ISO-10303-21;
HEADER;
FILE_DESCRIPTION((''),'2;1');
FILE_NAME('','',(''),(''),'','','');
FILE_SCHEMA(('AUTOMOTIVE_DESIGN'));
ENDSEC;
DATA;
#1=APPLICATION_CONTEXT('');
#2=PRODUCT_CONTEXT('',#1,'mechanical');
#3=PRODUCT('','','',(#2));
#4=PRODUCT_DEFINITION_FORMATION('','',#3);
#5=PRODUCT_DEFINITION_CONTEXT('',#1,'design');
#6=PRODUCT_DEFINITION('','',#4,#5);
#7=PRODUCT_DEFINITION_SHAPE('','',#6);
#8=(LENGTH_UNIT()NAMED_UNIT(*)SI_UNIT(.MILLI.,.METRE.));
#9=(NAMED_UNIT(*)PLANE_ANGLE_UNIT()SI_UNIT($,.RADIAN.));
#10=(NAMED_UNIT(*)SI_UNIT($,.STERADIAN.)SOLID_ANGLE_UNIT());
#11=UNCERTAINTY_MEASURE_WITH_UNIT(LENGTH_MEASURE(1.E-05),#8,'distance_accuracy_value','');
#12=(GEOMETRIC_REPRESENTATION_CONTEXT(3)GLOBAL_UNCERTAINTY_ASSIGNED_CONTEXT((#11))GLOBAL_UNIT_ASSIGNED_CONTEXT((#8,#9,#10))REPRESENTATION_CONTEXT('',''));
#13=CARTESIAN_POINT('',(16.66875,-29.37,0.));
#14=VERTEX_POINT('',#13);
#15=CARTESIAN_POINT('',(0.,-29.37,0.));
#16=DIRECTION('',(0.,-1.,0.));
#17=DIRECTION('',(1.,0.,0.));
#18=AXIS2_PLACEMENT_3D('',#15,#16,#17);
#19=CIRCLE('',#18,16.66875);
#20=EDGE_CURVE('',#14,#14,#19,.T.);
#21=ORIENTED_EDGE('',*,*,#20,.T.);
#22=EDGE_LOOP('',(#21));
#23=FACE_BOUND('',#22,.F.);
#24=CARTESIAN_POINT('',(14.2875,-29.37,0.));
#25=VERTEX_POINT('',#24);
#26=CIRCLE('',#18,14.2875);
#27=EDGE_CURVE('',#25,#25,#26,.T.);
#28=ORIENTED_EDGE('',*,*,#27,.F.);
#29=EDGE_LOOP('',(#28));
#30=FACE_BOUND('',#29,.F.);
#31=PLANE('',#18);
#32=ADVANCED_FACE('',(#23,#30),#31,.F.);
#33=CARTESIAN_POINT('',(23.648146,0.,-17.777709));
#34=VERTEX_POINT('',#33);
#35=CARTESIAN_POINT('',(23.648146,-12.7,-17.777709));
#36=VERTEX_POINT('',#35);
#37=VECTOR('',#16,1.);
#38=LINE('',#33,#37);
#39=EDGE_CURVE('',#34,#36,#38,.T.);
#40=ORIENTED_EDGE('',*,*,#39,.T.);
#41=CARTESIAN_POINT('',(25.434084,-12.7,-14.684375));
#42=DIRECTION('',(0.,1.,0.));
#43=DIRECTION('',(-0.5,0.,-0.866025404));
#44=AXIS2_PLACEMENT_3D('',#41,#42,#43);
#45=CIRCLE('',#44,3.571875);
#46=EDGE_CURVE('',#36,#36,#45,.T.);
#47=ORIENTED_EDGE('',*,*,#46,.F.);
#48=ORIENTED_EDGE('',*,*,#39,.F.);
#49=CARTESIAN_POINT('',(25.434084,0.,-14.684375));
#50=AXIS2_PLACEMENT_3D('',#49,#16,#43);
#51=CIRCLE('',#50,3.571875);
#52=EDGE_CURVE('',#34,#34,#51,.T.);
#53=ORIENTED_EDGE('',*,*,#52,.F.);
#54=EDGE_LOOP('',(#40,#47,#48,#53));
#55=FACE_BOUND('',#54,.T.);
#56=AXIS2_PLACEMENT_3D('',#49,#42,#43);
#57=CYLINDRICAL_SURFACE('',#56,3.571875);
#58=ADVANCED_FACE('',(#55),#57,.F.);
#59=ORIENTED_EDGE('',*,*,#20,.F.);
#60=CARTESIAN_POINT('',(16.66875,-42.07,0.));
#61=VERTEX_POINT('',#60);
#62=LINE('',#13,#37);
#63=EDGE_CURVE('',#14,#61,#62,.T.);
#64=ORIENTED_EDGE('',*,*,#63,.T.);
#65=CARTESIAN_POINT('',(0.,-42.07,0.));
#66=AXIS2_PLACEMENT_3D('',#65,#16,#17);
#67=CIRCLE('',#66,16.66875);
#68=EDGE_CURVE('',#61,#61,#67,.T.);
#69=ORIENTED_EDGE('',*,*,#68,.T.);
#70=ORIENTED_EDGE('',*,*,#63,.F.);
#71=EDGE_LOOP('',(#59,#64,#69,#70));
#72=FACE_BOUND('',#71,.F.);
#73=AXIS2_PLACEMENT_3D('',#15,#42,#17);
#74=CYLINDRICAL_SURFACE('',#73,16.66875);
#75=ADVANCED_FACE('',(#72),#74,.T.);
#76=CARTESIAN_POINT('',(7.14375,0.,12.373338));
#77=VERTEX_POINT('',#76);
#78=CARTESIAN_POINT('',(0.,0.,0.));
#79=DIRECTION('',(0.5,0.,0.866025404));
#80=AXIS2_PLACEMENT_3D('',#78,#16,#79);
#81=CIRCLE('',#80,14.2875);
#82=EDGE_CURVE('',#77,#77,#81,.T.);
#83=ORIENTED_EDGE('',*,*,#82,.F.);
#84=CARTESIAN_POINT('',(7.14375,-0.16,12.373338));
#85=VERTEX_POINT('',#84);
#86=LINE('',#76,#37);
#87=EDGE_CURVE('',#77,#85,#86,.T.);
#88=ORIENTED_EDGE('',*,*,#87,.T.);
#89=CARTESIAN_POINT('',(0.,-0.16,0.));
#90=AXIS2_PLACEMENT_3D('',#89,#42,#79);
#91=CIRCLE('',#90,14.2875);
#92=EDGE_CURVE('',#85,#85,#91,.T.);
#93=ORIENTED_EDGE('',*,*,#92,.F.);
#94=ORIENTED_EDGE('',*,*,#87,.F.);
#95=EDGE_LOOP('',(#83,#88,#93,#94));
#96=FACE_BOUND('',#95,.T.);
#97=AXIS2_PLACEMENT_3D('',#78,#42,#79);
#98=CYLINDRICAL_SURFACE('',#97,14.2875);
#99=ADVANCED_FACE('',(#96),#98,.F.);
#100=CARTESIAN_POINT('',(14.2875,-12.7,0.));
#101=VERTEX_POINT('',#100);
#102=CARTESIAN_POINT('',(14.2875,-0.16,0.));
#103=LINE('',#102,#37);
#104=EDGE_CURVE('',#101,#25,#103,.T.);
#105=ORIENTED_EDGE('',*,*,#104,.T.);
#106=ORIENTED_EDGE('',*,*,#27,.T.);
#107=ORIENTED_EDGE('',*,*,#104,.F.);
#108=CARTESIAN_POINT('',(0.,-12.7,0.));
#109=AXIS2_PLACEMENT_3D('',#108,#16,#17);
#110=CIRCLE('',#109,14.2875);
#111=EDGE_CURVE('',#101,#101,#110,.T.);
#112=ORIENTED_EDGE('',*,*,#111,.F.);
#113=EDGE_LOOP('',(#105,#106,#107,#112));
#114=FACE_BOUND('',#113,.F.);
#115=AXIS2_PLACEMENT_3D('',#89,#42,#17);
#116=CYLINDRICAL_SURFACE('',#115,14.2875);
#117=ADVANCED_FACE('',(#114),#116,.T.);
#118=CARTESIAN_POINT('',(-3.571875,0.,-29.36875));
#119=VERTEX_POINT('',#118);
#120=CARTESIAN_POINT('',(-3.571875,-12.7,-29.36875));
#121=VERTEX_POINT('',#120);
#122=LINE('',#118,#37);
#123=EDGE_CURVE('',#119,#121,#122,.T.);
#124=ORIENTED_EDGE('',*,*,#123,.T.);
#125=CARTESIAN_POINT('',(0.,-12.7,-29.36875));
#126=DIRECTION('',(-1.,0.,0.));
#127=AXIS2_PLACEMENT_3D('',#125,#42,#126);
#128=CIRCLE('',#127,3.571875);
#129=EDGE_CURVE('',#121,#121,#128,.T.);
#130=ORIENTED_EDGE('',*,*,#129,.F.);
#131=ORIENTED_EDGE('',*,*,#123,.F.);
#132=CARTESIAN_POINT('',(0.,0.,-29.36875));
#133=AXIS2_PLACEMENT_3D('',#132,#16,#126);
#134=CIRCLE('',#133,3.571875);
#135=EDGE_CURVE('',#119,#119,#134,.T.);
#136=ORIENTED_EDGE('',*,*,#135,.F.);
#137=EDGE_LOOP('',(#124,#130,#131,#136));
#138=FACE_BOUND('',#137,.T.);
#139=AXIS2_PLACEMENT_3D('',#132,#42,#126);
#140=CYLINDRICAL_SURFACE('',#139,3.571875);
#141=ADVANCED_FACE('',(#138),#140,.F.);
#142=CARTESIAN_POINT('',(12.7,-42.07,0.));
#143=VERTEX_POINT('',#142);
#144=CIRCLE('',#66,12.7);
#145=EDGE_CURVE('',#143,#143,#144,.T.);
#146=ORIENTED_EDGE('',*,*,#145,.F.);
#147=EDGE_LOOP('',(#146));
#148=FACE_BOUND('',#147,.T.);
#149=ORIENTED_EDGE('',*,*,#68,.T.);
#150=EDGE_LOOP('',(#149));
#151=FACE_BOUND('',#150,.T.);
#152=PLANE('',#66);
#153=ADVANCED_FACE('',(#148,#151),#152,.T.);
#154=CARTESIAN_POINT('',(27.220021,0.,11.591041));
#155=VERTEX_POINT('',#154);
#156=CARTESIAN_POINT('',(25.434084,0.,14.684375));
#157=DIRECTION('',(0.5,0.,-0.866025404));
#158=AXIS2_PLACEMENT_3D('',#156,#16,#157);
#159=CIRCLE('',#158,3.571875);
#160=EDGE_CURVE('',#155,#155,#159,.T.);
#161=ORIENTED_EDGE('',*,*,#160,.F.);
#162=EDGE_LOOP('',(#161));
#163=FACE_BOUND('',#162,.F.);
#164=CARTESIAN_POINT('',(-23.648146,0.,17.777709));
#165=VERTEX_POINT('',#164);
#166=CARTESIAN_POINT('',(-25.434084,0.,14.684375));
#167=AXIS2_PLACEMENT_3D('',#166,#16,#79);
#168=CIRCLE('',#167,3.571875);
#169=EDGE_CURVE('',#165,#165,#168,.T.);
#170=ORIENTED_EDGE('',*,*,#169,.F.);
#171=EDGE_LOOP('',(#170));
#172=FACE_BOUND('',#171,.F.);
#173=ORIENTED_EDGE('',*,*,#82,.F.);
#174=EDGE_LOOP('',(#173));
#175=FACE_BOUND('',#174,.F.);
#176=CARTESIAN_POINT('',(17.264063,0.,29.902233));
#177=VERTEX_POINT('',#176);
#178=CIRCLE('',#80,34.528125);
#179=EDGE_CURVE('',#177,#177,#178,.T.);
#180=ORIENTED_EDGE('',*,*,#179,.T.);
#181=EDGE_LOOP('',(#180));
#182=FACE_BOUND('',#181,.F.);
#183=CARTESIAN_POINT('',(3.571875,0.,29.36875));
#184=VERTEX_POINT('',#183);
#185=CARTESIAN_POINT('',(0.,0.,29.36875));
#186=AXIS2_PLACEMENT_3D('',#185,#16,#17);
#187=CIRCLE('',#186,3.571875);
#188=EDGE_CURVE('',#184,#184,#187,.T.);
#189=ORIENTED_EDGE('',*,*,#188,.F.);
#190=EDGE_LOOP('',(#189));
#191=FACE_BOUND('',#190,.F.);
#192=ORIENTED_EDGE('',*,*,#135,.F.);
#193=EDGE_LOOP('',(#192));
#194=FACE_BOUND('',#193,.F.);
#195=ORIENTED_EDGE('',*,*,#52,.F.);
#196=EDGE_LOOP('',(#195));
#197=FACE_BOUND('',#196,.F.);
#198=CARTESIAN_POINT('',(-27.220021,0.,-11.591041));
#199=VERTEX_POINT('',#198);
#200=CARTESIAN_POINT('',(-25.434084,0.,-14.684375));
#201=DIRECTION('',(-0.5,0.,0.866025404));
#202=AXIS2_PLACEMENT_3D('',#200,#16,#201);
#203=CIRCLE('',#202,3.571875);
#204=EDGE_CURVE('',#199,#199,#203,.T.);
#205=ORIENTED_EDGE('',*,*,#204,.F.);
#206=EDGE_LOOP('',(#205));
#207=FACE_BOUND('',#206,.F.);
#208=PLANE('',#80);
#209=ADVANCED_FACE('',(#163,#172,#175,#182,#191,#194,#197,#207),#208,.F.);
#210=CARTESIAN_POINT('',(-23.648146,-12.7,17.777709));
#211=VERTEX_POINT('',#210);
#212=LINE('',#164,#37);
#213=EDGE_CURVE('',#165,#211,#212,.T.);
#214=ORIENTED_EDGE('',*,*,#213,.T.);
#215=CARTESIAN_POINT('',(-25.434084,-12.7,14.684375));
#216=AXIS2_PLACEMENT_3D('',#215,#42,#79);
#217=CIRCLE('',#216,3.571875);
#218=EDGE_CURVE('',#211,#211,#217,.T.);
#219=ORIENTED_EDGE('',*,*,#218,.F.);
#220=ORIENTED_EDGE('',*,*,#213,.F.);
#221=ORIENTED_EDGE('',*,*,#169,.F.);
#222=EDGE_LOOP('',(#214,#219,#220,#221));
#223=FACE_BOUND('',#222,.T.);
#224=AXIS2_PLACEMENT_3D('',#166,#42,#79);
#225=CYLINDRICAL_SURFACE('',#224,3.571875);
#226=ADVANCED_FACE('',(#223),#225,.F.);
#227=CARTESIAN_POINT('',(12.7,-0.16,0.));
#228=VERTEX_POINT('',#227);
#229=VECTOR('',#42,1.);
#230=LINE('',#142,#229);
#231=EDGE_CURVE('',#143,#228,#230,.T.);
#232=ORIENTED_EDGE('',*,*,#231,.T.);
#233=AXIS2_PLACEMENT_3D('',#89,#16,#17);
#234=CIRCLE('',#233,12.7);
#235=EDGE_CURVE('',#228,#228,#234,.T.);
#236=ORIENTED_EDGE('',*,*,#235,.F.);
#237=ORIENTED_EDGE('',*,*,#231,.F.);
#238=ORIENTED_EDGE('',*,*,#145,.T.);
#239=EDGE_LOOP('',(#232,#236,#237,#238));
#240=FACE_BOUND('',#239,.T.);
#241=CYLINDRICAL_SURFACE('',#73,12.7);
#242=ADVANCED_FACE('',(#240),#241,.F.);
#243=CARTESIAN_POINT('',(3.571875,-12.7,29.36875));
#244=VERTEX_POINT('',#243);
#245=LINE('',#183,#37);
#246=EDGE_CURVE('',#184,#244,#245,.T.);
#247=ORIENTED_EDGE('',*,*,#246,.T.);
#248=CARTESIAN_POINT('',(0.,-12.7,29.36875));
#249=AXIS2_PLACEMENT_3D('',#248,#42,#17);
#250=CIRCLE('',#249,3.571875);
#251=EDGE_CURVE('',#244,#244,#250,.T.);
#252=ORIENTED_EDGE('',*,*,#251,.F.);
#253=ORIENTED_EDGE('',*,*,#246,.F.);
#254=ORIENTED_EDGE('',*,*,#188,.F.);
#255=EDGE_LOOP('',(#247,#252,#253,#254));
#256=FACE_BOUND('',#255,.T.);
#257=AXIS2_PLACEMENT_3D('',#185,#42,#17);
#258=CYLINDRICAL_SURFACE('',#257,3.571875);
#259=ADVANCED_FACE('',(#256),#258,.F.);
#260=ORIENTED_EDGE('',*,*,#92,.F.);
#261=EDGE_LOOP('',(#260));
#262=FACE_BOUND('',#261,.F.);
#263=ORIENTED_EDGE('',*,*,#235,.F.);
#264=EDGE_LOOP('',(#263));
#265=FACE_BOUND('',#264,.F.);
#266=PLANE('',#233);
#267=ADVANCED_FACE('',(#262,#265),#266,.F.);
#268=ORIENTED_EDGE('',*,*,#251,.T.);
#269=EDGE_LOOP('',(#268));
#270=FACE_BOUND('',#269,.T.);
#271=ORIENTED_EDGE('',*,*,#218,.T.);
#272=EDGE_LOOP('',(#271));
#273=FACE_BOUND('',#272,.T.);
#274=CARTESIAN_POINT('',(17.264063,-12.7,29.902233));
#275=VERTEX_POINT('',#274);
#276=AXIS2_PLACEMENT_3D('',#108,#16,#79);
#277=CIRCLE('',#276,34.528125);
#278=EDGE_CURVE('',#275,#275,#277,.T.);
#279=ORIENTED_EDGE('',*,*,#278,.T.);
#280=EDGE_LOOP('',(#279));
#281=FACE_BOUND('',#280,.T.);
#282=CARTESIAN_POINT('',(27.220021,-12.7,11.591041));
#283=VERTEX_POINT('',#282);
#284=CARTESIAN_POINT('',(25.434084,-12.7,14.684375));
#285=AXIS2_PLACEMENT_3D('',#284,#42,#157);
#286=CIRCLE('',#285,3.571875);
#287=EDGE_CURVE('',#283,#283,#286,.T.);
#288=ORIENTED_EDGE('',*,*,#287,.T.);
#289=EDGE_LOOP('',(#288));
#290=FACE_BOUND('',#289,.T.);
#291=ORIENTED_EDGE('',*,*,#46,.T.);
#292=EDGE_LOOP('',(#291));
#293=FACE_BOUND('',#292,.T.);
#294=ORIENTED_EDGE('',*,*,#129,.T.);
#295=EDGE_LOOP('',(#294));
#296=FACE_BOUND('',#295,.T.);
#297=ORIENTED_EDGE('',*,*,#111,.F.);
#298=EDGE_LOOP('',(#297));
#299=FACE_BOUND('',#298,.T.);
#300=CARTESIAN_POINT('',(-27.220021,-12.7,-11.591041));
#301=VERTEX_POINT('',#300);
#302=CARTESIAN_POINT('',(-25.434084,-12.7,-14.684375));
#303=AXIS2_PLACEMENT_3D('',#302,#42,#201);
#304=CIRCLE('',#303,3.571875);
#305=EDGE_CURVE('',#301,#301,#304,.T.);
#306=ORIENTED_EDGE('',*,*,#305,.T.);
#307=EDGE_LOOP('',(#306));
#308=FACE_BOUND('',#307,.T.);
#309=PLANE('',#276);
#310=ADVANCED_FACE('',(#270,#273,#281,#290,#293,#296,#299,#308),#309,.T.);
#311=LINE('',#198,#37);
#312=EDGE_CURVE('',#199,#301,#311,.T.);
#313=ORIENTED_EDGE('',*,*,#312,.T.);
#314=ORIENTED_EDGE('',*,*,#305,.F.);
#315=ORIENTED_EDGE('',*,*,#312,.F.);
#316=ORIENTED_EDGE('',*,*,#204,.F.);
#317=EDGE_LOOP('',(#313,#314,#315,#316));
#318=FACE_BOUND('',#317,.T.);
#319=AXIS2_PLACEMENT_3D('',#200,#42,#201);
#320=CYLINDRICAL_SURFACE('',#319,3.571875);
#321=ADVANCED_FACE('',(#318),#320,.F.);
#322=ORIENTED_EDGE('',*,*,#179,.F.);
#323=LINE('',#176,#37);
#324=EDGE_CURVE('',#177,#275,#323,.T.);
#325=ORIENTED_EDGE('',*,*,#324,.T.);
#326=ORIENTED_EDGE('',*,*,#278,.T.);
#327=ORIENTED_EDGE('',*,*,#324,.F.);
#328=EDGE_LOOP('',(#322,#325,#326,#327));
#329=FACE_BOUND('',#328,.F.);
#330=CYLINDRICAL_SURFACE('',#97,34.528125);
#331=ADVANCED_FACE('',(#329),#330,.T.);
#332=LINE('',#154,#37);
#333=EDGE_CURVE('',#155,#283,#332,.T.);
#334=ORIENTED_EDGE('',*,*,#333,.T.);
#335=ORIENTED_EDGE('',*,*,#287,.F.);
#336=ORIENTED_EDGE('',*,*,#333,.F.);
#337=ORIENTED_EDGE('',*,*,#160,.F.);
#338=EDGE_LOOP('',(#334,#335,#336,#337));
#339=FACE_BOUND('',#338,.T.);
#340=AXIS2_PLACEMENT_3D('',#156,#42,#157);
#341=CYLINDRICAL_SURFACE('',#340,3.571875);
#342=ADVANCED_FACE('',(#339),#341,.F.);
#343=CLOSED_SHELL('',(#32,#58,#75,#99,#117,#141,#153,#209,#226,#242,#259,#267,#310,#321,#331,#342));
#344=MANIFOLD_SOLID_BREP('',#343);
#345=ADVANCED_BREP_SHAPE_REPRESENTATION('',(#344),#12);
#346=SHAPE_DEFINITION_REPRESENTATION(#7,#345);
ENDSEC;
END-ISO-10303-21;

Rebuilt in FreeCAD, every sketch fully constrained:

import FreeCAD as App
import Part
import Sketcher

V = App.Vector
Q = App.Units.Quantity

doc = App.newDocument("Part")
body = doc.addObject("PartDesign::Body", "Body")

# Sketch on XZ plane
sketch1 = doc.addObject("Sketcher::SketchObject", "Sketch")
body.addObject(sketch1)
sketch1.AttachmentSupport = (doc.XZ_Plane, [""])
sketch1.MapMode = "FlatFace"
sketch1.addGeometry([
    Part.Circle(V(0, 0, 0), V(0, 0, 1), 14.2875),
    Part.Circle(V(0, 0, 0), V(0, 0, 1), 12.7),
], False)
sketch1.addConstraint([
    Sketcher.Constraint("Coincident", 0, 3, -1, 1),
    Sketcher.Constraint("Coincident", 1, 3, -1, 1),
    Sketcher.Constraint("Diameter", 1, Q("1 in")),
    Sketcher.Constraint("Diameter", 0, Q("1.125 in")),
])
pad1 = doc.addObject("PartDesign::Pad", "Pad")
body.addObject(pad1)
pad1.Profile = sketch1
pad1.Length = Q("1.15 in")
body2 = doc.addObject("PartDesign::Body", "Body001")
doc.recompute()

body.Placement = App.Placement(V(0, -0.16, 0), App.Rotation(V(0, 0, 1), 0))
boolean = doc.addObject("PartDesign::Boolean", "Boolean")
body2.addObject(boolean)
boolean.Type = "Fuse"
boolean.addObjects([body])
body3 = doc.addObject("PartDesign::Body", "Body002")

# Sketch on XZ plane
sketch2 = doc.addObject("Sketcher::SketchObject", "Sketch001")
body3.addObject(sketch2)
sketch2.AttachmentSupport = (doc.getObject("XZ_Plane002"), [""])
sketch2.MapMode = "FlatFace"
sketch2.addGeometry([
    Part.Circle(V(0, 0, 0), V(0, 0, 1), 16.66875),
    Part.Circle(V(0, 0, 0), V(0, 0, 1), 12.7),
], False)
sketch2.addConstraint([
    Sketcher.Constraint("Coincident", 0, 3, -1, 1),
    Sketcher.Constraint("Coincident", 1, 3, -1, 1),
    Sketcher.Constraint("Diameter", 1, Q("1 in")),
    Sketcher.Constraint("Diameter", 0, Q("1.3125 in")),
])
pad2 = doc.addObject("PartDesign::Pad", "Pad001")
body3.addObject(pad2)
pad2.Profile = sketch2
pad2.Length = Q("0.5 in")
body4 = doc.addObject("PartDesign::Body", "Body003")
doc.recompute()

body3.Placement = App.Placement(V(0, -29.37, 0), App.Rotation(V(0, 0, 1), 0))
boolean2 = doc.addObject("PartDesign::Boolean", "Boolean001")
body4.addObject(boolean2)
boolean2.Type = "Fuse"
boolean2.addObjects([body3])
body5 = doc.addObject("PartDesign::Body", "Body004")

# Sketch on XZ plane
sketch3 = doc.addObject("Sketcher::SketchObject", "Sketch002")
body5.addObject(sketch3)
sketch3.AttachmentSupport = (doc.getObject("XZ_Plane004"), [""])
sketch3.MapMode = "FlatFace"
sketch3.addGeometry(Part.Circle(V(0, 29.36875, 0), V(0, 0, 1), 3.571875), False)
sketch3.addConstraint([
    Sketcher.Constraint("PointOnObject", 0, 3, -2),
    Sketcher.Constraint("Diameter", 0, Q("0.28125 in")),
    Sketcher.Constraint("DistanceY", -1, 1, 0, 3, Q("1.15625 in")),
])
pad3 = doc.addObject("PartDesign::Pad", "Pad002")
body5.addObject(pad3)
pad3.Profile = sketch3
pad3.Length = 13
body6 = doc.addObject("PartDesign::Body", "Body005")

# Sketch on XZ plane
sketch4 = doc.addObject("Sketcher::SketchObject", "Sketch003")
body6.addObject(sketch4)
sketch4.AttachmentSupport = (doc.getObject("XZ_Plane005"), [""])
sketch4.MapMode = "FlatFace"
sketch4.addGeometry([
    Part.Circle(V(0, 0, 0), V(0, 0, 1), 34.528125),
    Part.Circle(V(0, 0, 0), V(0, 0, 1), 14.2875),
], False)
sketch4.addConstraint([
    Sketcher.Constraint("Coincident", 0, 3, -1, 1),
    Sketcher.Constraint("Coincident", 1, 3, -1, 1),
    Sketcher.Constraint("Diameter", 0, Q("2.71875 in")),
    Sketcher.Constraint("Diameter", 1, Q("1.125 in")),
])
pad4 = doc.addObject("PartDesign::Pad", "Pad003")
body6.addObject(pad4)
pad4.Profile = sketch4
pad4.Length = Q("0.5 in")
doc.recompute()

body7 = doc.addObject("PartDesign::Body", "Body006")
body7.BaseFeature = body5
boolean3 = doc.addObject("PartDesign::Boolean", "Boolean002")
body6.addObject(boolean3)
boolean3.Type = "Cut"
boolean3.addObjects([body7])
doc.recompute()
body8 = doc.addObject("PartDesign::Body", "Body007")
doc.recompute()

body6.Placement = App.Placement(V(0, 0, 0), App.Rotation(V(0, 1, 0), 60))
boolean4 = doc.addObject("PartDesign::Boolean", "Boolean003")
body8.addObject(boolean4)
boolean4.Type = "Fuse"
boolean4.addObjects([body6])
doc.recompute()

body9 = doc.addObject("PartDesign::Body", "Body008")
body9.BaseFeature = body5
boolean5 = doc.addObject("PartDesign::Boolean", "Boolean004")
body8.addObject(boolean5)
boolean5.Type = "Cut"
boolean5.addObjects([body9])
doc.recompute()
body10 = doc.addObject("PartDesign::Body", "Body009")
doc.recompute()

body8.Placement = App.Placement(V(0, 0, 0), App.Rotation(V(0, 1, 0), 60))
boolean6 = doc.addObject("PartDesign::Boolean", "Boolean005")
body10.addObject(boolean6)
boolean6.Type = "Fuse"
boolean6.addObjects([body8])
doc.recompute()

body11 = doc.addObject("PartDesign::Body", "Body010")
body11.BaseFeature = body5
boolean7 = doc.addObject("PartDesign::Boolean", "Boolean006")
body10.addObject(boolean7)
boolean7.Type = "Cut"
boolean7.addObjects([body11])
doc.recompute()
body12 = doc.addObject("PartDesign::Body", "Body011")
doc.recompute()

body10.Placement = App.Placement(V(0, 0, 0), App.Rotation(V(0, 1, 0), 60))
boolean8 = doc.addObject("PartDesign::Boolean", "Boolean007")
body12.addObject(boolean8)
boolean8.Type = "Fuse"
boolean8.addObjects([body10])
doc.recompute()

body13 = doc.addObject("PartDesign::Body", "Body012")
body13.BaseFeature = body5
boolean9 = doc.addObject("PartDesign::Boolean", "Boolean008")
body12.addObject(boolean9)
boolean9.Type = "Cut"
boolean9.addObjects([body13])
doc.recompute()
body14 = doc.addObject("PartDesign::Body", "Body013")
doc.recompute()

body12.Placement = App.Placement(V(0, 0, 0), App.Rotation(V(0, 1, 0), 60))
boolean10 = doc.addObject("PartDesign::Boolean", "Boolean009")
body14.addObject(boolean10)
boolean10.Type = "Fuse"
boolean10.addObjects([body12])
doc.recompute()

body15 = doc.addObject("PartDesign::Body", "Body014")
body15.BaseFeature = body5
boolean11 = doc.addObject("PartDesign::Boolean", "Boolean010")
body14.addObject(boolean11)
boolean11.Type = "Cut"
boolean11.addObjects([body15])
doc.recompute()
body16 = doc.addObject("PartDesign::Body", "Body015")
doc.recompute()

body14.Placement = App.Placement(V(0, 0, 0), App.Rotation(V(0, 1, 0), 60))
boolean12 = doc.addObject("PartDesign::Boolean", "Boolean011")
body16.addObject(boolean12)
boolean12.Type = "Fuse"
boolean12.addObjects([body14])
doc.recompute()

boolean13 = doc.addObject("PartDesign::Boolean", "Boolean012")
body16.addObject(boolean13)
boolean13.Type = "Cut"
boolean13.addObjects([body5])
doc.recompute()

boolean14 = doc.addObject("PartDesign::Boolean", "Boolean013")
body16.addObject(boolean14)
boolean14.Type = "Fuse"
boolean14.addObjects([body2])
doc.recompute()

boolean15 = doc.addObject("PartDesign::Boolean", "Boolean014")
body16.addObject(boolean15)
boolean15.Type = "Fuse"
boolean15.addObjects([body4])

doc.recompute()
